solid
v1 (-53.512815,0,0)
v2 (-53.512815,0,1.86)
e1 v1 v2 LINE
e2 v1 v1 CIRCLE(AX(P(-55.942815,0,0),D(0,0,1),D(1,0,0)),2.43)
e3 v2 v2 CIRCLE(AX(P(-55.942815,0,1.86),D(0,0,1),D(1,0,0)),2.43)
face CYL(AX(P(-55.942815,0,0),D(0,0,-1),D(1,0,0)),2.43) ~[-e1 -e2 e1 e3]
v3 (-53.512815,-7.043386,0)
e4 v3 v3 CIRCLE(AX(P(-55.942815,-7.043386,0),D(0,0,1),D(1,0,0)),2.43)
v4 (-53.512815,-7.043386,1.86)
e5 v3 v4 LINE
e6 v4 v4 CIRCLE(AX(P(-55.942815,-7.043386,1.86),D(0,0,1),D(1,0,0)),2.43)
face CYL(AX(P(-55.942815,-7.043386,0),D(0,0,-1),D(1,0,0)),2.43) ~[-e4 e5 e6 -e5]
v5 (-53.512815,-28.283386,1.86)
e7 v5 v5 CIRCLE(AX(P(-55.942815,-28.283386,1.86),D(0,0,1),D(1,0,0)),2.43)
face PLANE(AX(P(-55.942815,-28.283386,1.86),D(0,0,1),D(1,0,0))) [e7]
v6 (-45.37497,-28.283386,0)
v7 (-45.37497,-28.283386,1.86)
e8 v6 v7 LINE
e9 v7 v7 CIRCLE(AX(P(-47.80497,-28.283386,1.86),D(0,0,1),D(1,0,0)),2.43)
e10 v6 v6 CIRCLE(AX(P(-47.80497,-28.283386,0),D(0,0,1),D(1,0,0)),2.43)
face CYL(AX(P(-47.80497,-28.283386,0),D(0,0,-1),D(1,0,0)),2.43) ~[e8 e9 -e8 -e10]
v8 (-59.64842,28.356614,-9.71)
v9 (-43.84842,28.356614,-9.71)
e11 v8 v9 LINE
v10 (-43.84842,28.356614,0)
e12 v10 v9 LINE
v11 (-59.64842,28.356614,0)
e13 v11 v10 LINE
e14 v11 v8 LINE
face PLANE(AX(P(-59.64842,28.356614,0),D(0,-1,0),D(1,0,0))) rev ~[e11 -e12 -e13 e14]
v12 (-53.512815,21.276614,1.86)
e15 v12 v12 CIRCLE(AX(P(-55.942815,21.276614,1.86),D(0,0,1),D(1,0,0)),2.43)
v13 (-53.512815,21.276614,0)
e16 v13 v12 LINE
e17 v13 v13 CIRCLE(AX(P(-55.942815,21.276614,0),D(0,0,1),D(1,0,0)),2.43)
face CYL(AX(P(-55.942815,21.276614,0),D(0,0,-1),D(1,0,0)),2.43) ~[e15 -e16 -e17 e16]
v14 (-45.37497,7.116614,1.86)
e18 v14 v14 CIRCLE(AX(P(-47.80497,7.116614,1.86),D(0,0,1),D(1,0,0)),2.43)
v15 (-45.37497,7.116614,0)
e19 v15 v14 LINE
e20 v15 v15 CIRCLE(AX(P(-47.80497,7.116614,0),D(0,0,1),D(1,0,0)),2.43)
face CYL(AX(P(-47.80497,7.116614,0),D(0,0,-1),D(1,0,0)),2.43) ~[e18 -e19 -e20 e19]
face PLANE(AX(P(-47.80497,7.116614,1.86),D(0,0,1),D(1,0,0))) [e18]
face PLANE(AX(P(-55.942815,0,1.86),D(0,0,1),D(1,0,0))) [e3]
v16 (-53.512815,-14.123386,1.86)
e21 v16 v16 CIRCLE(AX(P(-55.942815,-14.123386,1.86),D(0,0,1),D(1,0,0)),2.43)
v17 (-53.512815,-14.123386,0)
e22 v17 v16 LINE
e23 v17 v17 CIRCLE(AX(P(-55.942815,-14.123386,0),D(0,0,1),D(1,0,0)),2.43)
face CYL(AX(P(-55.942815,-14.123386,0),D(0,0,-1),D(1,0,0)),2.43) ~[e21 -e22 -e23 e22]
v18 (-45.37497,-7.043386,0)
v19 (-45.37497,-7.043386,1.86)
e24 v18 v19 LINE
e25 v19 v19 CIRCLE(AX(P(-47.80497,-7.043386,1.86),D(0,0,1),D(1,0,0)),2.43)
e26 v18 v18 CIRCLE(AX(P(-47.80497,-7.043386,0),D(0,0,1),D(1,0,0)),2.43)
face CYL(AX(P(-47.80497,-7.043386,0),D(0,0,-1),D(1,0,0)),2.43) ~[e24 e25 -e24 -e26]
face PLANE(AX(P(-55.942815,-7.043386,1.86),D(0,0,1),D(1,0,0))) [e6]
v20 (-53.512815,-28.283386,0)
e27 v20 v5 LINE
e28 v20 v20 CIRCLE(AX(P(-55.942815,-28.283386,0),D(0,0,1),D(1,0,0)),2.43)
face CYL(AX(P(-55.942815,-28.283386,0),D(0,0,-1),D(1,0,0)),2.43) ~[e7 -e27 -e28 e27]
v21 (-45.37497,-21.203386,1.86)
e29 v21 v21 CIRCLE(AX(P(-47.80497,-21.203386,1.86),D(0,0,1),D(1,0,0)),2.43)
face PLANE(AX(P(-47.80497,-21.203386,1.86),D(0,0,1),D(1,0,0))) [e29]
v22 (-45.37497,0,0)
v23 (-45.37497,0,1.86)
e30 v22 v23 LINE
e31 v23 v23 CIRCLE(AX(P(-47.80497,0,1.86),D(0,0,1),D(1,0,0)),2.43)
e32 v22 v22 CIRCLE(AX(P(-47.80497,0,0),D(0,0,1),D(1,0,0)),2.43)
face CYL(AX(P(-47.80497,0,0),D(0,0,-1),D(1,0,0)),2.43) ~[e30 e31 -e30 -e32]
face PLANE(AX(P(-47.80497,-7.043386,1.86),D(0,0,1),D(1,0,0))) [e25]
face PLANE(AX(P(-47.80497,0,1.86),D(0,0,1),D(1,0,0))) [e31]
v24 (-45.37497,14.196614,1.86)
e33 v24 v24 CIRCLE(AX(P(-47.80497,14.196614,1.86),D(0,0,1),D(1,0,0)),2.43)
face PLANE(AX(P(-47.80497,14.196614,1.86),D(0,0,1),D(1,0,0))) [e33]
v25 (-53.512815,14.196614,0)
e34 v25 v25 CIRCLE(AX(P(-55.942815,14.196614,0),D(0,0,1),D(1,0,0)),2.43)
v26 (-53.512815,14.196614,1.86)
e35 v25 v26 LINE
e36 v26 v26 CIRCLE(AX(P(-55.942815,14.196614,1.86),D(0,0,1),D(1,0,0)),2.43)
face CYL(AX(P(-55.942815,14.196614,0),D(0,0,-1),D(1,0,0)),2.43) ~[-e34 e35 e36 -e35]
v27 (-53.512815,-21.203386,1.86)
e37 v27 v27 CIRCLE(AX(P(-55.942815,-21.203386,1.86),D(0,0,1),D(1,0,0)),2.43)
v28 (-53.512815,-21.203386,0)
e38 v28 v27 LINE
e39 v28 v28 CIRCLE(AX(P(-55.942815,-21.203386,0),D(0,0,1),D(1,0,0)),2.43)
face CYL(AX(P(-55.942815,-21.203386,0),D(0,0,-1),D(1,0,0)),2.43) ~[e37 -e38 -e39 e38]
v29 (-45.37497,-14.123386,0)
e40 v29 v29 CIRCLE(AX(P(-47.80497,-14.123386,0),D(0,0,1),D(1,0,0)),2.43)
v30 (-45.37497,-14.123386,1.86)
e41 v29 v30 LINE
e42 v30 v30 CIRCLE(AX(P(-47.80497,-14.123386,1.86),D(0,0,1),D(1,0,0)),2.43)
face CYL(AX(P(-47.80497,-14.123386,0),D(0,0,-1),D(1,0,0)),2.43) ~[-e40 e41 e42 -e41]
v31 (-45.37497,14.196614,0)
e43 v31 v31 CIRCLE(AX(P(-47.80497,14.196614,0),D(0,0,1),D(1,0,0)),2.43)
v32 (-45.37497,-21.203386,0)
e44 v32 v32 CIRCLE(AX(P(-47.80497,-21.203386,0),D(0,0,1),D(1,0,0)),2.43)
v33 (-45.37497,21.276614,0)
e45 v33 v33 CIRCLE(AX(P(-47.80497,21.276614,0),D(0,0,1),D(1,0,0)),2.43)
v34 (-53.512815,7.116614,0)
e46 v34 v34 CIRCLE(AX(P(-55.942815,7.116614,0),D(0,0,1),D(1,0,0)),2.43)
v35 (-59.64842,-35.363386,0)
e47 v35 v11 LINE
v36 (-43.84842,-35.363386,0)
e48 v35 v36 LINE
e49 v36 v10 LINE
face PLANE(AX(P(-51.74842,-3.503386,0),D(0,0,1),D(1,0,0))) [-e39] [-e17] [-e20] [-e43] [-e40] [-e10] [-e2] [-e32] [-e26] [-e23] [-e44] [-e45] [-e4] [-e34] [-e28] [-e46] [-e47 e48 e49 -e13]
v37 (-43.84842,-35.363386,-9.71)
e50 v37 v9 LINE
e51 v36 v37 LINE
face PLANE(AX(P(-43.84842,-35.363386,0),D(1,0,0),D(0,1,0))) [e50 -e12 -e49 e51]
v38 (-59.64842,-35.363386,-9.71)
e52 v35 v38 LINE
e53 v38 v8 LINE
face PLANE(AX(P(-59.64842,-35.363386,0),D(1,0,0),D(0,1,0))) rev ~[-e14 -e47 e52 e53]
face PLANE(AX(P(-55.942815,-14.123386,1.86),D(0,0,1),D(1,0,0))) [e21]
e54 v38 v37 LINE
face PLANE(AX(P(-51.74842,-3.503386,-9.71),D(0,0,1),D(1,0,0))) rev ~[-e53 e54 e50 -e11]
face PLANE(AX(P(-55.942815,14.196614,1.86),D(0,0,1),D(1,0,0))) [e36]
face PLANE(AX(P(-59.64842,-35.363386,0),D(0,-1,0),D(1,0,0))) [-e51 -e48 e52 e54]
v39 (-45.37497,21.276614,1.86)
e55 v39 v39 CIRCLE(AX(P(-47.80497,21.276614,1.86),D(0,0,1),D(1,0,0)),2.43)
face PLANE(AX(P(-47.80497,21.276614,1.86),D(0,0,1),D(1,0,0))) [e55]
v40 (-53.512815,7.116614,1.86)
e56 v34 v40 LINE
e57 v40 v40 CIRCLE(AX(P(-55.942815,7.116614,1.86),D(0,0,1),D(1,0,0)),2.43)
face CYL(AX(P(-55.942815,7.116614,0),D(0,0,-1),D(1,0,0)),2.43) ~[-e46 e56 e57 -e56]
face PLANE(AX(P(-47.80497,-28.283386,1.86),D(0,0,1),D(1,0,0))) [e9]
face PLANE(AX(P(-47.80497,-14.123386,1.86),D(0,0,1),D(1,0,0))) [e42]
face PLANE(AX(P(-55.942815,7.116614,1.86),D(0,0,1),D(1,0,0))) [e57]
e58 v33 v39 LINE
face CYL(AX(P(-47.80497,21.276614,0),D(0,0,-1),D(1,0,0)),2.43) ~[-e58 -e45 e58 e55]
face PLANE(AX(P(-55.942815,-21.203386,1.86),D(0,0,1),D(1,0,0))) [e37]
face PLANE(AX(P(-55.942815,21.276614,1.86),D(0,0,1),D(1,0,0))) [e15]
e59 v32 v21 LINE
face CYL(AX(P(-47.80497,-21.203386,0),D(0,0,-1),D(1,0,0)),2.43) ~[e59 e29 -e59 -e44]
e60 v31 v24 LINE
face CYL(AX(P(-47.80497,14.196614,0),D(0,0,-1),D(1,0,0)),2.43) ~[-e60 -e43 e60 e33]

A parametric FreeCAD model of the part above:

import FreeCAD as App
import Part
import Sketcher
from FreeCAD import Vector


def add_polygon(sketch, points):
    """Adds a closed chain of lines whose ends are joined by coincident constraints."""
    first, n = sketch.GeometryCount, len(points)
    for a, b in zip(points, points[1:] + points[:1]):
        sketch.addGeometry(Part.LineSegment(App.Vector(*a, 0), App.Vector(*b, 0)), False)
    for i in range(n):
        sketch.addConstraint(Sketcher.Constraint("Coincident", first + i, 2, first + (i + 1) % n, 1))

doc = App.newDocument("Part")
params = doc.addObject("Spreadsheet::Sheet", "Params")
for row, (alias, value) in enumerate([
    ("sketch1_width", "15.8 mm"),
    ("sketch1_height", "63.72 mm"),
    ("pad1_length", "9.71 mm"),
    ("sketch2_diameter", "4.86 mm"),
    ("pad2_length", "1.86 mm"),
], start=1):
    params.set(f"A{row}", alias)
    params.set(f"B{row}", "=" + value)
    params.setAlias(f"B{row}", alias)

body = doc.addObject("PartDesign::Body", "Body")

sketch1 = body.newObject("Sketcher::SketchObject", "Sketch")
sketch1.AttachmentSupport = (doc.getObject("XY_Plane"), [""])
sketch1.MapMode = "FlatFace"
add_polygon(sketch1, [(-60, 28), (-60, -35), (-44, -35), (-44, 28)])
sketch1.addConstraint([
    Sketcher.Constraint("Vertical", 0),
    Sketcher.Constraint("Horizontal", 1),
    Sketcher.Constraint("Vertical", 2),
    Sketcher.Constraint("Horizontal", 3),
    Sketcher.Constraint("DistanceX", 1, 1, 1, 2, 15.8),
    Sketcher.Constraint("DistanceY", 0, 2, 0, 1, 63.72),
    Sketcher.Constraint("DistanceX", 0, 2, -1, 1, 59.64842),
    Sketcher.Constraint("DistanceY", 0, 2, -1, 1, 35.363386),
])
sketch1.setExpression("Constraints[8]", "Params.sketch1_width")
sketch1.setExpression("Constraints[9]", "Params.sketch1_height")
pad1 = body.newObject("PartDesign::Pad", "Pad")
pad1.Profile = sketch1
pad1.setExpression("Length", "Params.pad1_length")
pad1.Reversed = True

sketch2 = body.newObject("Sketcher::SketchObject", "Sketch001")
sketch2.AttachmentSupport = (doc.getObject("XY_Plane"), [""])
sketch2.MapMode = "FlatFace"
sketch2.addGeometry([
    Part.Circle(Vector(-55.9, 21.3, 0), Vector(0, 0, 1), 2.4),
    Part.Circle(Vector(-55.9, 14.2, 0), Vector(0, 0, 1), 2.4),
    Part.Circle(Vector(-55.9, 7.1, 0), Vector(0, 0, 1), 2.4),
    Part.Circle(Vector(-55.9, 0, 0), Vector(0, 0, 1), 2.4),
    Part.Circle(Vector(-55.9, -7, 0), Vector(0, 0, 1), 2.4),
    Part.Circle(Vector(-55.9, -14.1, 0), Vector(0, 0, 1), 2.4),
    Part.Circle(Vector(-55.9, -21.2, 0), Vector(0, 0, 1), 2.4),
    Part.Circle(Vector(-55.9, -28.3, 0), Vector(0, 0, 1), 2.4),
    Part.Circle(Vector(-47.8, -28.3, 0), Vector(0, 0, 1), 2.4),
    Part.Circle(Vector(-47.8, -21.2, 0), Vector(0, 0, 1), 2.4),
    Part.Circle(Vector(-47.8, -14.1, 0), Vector(0, 0, 1), 2.4),
    Part.Circle(Vector(-47.8, -7, 0), Vector(0, 0, 1), 2.4),
    Part.Circle(Vector(-47.8, 0, 0), Vector(0, 0, 1), 2.4),
    Part.Circle(Vector(-47.8, 7.1, 0), Vector(0, 0, 1), 2.4),
    Part.Circle(Vector(-47.8, 14.2, 0), Vector(0, 0, 1), 2.4),
    Part.Circle(Vector(-47.8, 21.3, 0), Vector(0, 0, 1), 2.4),
], False)
sketch2.addConstraint([
    Sketcher.Constraint("Equal", 0, 1),
    Sketcher.Constraint("Equal", 1, 2),
    Sketcher.Constraint("Equal", 2, 3),
    Sketcher.Constraint("Equal", 3, 4),
    Sketcher.Constraint("Equal", 4, 5),
    Sketcher.Constraint("Equal", 5, 6),
    Sketcher.Constraint("Equal", 6, 7),
    Sketcher.Constraint("Equal", 7, 8),
    Sketcher.Constraint("Equal", 8, 9),
    Sketcher.Constraint("Equal", 9, 10),
    Sketcher.Constraint("Equal", 10, 11),
    Sketcher.Constraint("Equal", 11, 12),
    Sketcher.Constraint("Equal", 12, 13),
    Sketcher.Constraint("Equal", 13, 14),
    Sketcher.Constraint("Equal", 14, 15),
    Sketcher.Constraint("PointOnObject", 3, 3, -1),
    Sketcher.Constraint("PointOnObject", 12, 3, -1),
    Sketcher.Constraint("Horizontal", 7, 3, 8, 3),
    Sketcher.Constraint("Horizontal", 6, 3, 9, 3),
    Sketcher.Constraint("Horizontal", 5, 3, 10, 3),
    Sketcher.Constraint("Horizontal", 4, 3, 11, 3),
    Sketcher.Constraint("Horizontal", 2, 3, 13, 3),
    Sketcher.Constraint("Horizontal", 1, 3, 14, 3),
    Sketcher.Constraint("Horizontal", 0, 3, 15, 3),
    Sketcher.Constraint("Vertical", 0, 3, 1, 3),
    Sketcher.Constraint("Vertical", 1, 3, 2, 3),
    Sketcher.Constraint("Vertical", 2, 3, 3, 3),
    Sketcher.Constraint("Vertical", 3, 3, 4, 3),
    Sketcher.Constraint("Vertical", 4, 3, 5, 3),
    Sketcher.Constraint("Vertical", 5, 3, 6, 3),
    Sketcher.Constraint("Vertical", 6, 3, 7, 3),
    Sketcher.Constraint("Vertical", 8, 3, 9, 3),
    Sketcher.Constraint("Vertical", 9, 3, 10, 3),
    Sketcher.Constraint("Vertical", 10, 3, 11, 3),
    Sketcher.Constraint("Vertical", 11, 3, 12, 3),
    Sketcher.Constraint("Vertical", 12, 3, 13, 3),
    Sketcher.Constraint("Vertical", 13, 3, 14, 3),
    Sketcher.Constraint("Vertical", 14, 3, 15, 3),
    Sketcher.Constraint("Diameter", 0, 4.86),
    Sketcher.Constraint("DistanceY", 5, 3, 0, 3, 35.4),
    Sketcher.Constraint("DistanceY", 6, 3, 1, 3, 35.4),
    Sketcher.Constraint("DistanceY", 7, 3, 2, 3, 35.4),
    Sketcher.Constraint("DistanceY", 1, 3, 0, 3, 7.08),
    Sketcher.Constraint("DistanceY", 2, 3, 1, 3, 7.08),
    Sketcher.Constraint("DistanceY", 4, 3, 2, 3, 14.16),
    Sketcher.Constraint("DistanceX", 8, 3, -1, 1, 47.80497),
    Sketcher.Constraint("DistanceX", 0, 3, -1, 1, 55.942815),
    Sketcher.Constraint("DistanceY", -1, 1, 0, 3, 21.276614),
])
sketch2.setExpression("Constraints[38]", "Params.sketch2_diameter")
pad2 = body.newObject("PartDesign::Pad", "Pad001")
pad2.Profile = sketch2
pad2.setExpression("Length", "Params.pad2_length")

doc.recompute()
